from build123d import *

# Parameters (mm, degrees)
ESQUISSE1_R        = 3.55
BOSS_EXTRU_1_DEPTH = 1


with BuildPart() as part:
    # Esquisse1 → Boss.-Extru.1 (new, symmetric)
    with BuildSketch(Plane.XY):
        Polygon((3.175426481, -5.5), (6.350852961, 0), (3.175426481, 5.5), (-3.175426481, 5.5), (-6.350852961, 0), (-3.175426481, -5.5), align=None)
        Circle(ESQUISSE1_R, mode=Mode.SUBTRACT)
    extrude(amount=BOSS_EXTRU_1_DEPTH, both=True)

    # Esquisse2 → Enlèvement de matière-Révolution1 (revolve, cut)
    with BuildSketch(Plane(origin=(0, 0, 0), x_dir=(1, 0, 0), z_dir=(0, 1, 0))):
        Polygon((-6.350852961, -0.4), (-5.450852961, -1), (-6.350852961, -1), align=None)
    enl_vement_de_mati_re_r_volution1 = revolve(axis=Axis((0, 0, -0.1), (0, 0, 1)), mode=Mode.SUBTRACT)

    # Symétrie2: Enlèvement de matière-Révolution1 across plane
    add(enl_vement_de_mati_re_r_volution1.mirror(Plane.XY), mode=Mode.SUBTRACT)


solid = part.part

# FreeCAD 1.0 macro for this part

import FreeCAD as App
import Part
import Sketcher

V = App.Vector
Q = App.Units.Quantity


def add_polygon(sketch, points):
    """Adds a closed chain of lines whose ends are joined by coincident constraints."""
    first, n = sketch.GeometryCount, len(points)
    for a, b in zip(points, points[1:] + points[:1]):
        sketch.addGeometry(Part.LineSegment(App.Vector(*a, 0), App.Vector(*b, 0)), False)
    for i in range(n):
        sketch.addConstraint(Sketcher.Constraint("Coincident", first + i, 2, first + (i + 1) % n, 1))

doc = App.newDocument("Part")
body = doc.addObject("PartDesign::Body", "Body")

# Sketch on XY plane
sketch1 = doc.addObject("Sketcher::SketchObject", "Sketch")
body.addObject(sketch1)
sketch1.AttachmentSupport = (doc.XY_Plane, [""])
sketch1.MapMode = "FlatFace"
add_polygon(sketch1, [(3.175426, -5.5), (6.350853, 0), (3.175426, 5.5), (-3.175426, 5.5), (-6.350853, 0), (-3.175426, -5.5)])  # lines 0-5
sketch1.addGeometry(Part.Circle(V(0, 0, 0), V(0, 0, 1), 3.55), False)  # 6
sketch1.addConstraint([
    Sketcher.Constraint("Horizontal", 2),
    Sketcher.Constraint("Horizontal", 5),
    Sketcher.Constraint("Coincident", 6, 3, -1, 1),
    Sketcher.Constraint("Symmetric", 0, 2, 3, 2, -1, 1),
    Sketcher.Constraint("Symmetric", 1, 2, 4, 2, -1, 1),
    Sketcher.Constraint("PointOnObject", 0, 2, -1),
    Sketcher.Constraint("Parallel", 0, 3),
    Sketcher.Constraint("Vertical", 2, 2, 4, 2),
    Sketcher.Constraint("Diameter", 6, 7.1),
    Sketcher.Constraint("Angle", 0, Q("60 deg")),
    Sketcher.Constraint("DistanceY", 4, 2, 2, 2, 11.0),
    Sketcher.Constraint("DistanceX", 2, 2, 2, 1, 6.350853),
])
pad1 = doc.addObject("PartDesign::Pad", "Pad")
body.addObject(pad1)
pad1.Profile = sketch1
pad1.Length = 2
pad1.Midplane = True

# Sketch on XZ plane
sketch2 = doc.addObject("Sketcher::SketchObject", "Sketch001")
body.addObject(sketch2)
sketch2.AttachmentSupport = (doc.XZ_Plane, [""])
sketch2.MapMode = "FlatFace"
add_polygon(sketch2, [(-5.450853, 1), (-6.350853, 0.4), (-6.350853, 1)])  # lines 0-2
sketch2.addConstraint([
    Sketcher.Constraint("Vertical", 1),
    Sketcher.Constraint("Horizontal", 2),
    Sketcher.Constraint("DistanceX", 2, 1, 2, 2, 0.9),
    Sketcher.Constraint("DistanceY", 1, 1, 1, 2, 0.6),
    Sketcher.Constraint("DistanceY", -1, 1, 1, 2, 1.0),
    Sketcher.Constraint("DistanceX", 0, 2, -1, 1, 6.350853),
])
groove = doc.addObject("PartDesign::Groove", "Groove")
body.addObject(groove)
groove.Profile = sketch2
groove.ReferenceAxis = (sketch2, ["V_Axis"])
groove.Angle = 360
doc.recompute()

mirrored = doc.addObject("PartDesign::Mirrored", "Mirrored")
body.addObject(mirrored)
mirrored.Originals = [groove]
mirrored.MirrorPlane = (doc.XY_Plane, [""])
body.Tip = mirrored

doc.recompute()
